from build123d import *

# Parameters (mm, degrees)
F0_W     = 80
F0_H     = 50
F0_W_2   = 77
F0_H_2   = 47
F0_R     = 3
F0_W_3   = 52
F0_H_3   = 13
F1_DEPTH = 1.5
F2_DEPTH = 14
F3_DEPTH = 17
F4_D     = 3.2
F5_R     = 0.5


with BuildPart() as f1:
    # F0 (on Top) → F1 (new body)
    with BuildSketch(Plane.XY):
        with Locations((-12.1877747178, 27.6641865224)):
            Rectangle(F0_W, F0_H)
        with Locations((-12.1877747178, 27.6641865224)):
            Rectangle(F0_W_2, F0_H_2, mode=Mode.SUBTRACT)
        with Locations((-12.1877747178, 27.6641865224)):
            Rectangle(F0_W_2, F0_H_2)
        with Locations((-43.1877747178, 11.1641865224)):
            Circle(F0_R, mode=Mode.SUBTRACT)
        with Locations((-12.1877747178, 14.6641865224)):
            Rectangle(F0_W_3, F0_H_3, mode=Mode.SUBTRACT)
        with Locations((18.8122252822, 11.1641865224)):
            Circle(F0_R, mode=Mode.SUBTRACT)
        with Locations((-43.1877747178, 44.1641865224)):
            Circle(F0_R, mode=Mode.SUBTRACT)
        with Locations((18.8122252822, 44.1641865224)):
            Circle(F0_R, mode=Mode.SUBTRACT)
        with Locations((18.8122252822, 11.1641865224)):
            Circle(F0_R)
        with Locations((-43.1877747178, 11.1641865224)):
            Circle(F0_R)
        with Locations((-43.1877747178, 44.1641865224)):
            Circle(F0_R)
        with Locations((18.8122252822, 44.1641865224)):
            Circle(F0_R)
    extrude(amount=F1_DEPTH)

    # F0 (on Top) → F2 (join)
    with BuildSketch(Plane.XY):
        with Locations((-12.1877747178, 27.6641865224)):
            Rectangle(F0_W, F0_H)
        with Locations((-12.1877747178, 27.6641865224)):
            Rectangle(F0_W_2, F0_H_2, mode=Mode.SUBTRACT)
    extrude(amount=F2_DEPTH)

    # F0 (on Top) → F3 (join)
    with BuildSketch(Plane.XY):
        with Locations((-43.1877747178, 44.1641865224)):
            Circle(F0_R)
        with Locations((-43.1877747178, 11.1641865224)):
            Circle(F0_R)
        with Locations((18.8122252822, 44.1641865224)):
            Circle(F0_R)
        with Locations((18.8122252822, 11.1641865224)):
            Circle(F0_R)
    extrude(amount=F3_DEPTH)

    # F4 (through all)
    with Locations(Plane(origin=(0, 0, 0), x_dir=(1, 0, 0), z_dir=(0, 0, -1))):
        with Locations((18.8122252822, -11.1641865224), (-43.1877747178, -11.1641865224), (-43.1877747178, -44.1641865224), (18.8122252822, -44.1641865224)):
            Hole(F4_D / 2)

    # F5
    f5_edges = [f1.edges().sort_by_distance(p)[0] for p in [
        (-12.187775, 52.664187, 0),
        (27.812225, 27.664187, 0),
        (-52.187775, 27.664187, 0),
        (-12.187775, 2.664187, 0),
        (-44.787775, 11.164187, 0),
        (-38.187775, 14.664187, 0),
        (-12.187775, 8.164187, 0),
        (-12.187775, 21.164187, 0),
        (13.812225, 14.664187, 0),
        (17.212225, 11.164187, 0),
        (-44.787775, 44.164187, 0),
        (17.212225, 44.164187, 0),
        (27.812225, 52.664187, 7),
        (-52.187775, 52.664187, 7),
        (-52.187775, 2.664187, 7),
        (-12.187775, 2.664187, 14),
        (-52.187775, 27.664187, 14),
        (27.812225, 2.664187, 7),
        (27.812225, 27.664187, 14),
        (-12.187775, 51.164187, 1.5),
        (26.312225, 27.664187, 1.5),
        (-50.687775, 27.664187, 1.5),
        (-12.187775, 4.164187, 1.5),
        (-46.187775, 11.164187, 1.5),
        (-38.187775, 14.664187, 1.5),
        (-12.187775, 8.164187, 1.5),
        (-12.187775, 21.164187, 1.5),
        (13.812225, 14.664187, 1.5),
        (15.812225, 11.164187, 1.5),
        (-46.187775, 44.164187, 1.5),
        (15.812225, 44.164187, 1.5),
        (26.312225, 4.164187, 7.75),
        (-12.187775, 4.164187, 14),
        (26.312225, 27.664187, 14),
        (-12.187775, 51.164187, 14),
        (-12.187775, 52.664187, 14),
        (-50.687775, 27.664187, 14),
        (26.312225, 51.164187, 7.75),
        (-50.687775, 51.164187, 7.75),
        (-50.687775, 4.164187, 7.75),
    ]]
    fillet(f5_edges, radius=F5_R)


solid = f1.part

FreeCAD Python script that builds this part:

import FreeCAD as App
import Part
import Sketcher

V = App.Vector
Q = App.Units.Quantity


def edges_at(feature, points):
    """Names of the edges that pass closest to the given points."""
    edges = feature.Shape.Edges
    near = lambda p: min(range(len(edges)), key=lambda i: edges[i].distToShape(Part.Vertex(*p))[0])
    return sorted({f"Edge{near(p) + 1}" for p in points})


def add_polygon(sketch, points):
    """Adds a closed chain of lines whose ends are joined by coincident constraints."""
    first, n = sketch.GeometryCount, len(points)
    for a, b in zip(points, points[1:] + points[:1]):
        sketch.addGeometry(Part.LineSegment(App.Vector(*a, 0), App.Vector(*b, 0)), False)
    for i in range(n):
        sketch.addConstraint(Sketcher.Constraint("Coincident", first + i, 2, first + (i + 1) % n, 1))

doc = App.newDocument("Part")
params = doc.addObject("Spreadsheet::Sheet", "Params")
for row, (alias, value) in enumerate([
    ("sketch1_width", "80 mm"),
    ("sketch1_width2", "52 mm"),
    ("sketch1_height", "50 mm"),
    ("sketch1_height2", "13 mm"),
    ("pad1_length", "1.5 mm"),
    ("sketch2_width", "80 mm"),
    ("sketch2_width2", "77 mm"),
    ("sketch2_height", "50 mm"),
    ("sketch2_height2", "47 mm"),
    ("pad2_length", "14 mm"),
    ("sketch3_diameter", "6 mm"),
    ("pad3_length", "17 mm"),
    ("sketch4_diameter", "3.2 mm"),
    ("hole_diameter", "3.2 mm"),
    ("fillet_radius", "0.5 mm"),
], start=1):
    params.set(f"A{row}", alias)
    params.set(f"B{row}", "=" + value)
    params.setAlias(f"B{row}", alias)

body = doc.addObject("PartDesign::Body", "Body")

# Sketch on XY plane
sketch1 = body.newObject("Sketcher::SketchObject", "Sketch")
sketch1.AttachmentSupport = (doc.getObject("XY_Plane"), [""])
sketch1.MapMode = "FlatFace"
add_polygon(sketch1, [(-52.187775, 52.664187), (-52.187775, 2.664187), (27.812225, 2.664187), (27.812225, 52.664187)])  # lines 0-3
add_polygon(sketch1, [(13.812225, 8.164187), (-38.187775, 8.164187), (-38.187775, 21.164187), (13.812225, 21.164187)])  # lines 4-7
sketch1.addConstraint(Sketcher.Constraint("Vertical", 0))
sketch1.addConstraint(Sketcher.Constraint("Horizontal", 1))
sketch1.addConstraint(Sketcher.Constraint("Vertical", 2))
sketch1.addConstraint(Sketcher.Constraint("Horizontal", 3))
sketch1.addConstraint(Sketcher.Constraint("Horizontal", 4))
sketch1.addConstraint(Sketcher.Constraint("Vertical", 5))
sketch1.addConstraint(Sketcher.Constraint("Horizontal", 6))
sketch1.addConstraint(Sketcher.Constraint("Vertical", 7))
sketch1.addConstraint(Sketcher.Constraint("DistanceX", 1, 1, 1, 2, Q("80 mm")))
sketch1.addConstraint(Sketcher.Constraint("DistanceX", 4, 2, 4, 1, Q("52 mm")))
sketch1.addConstraint(Sketcher.Constraint("DistanceY", 0, 2, 0, 1, Q("50 mm")))
sketch1.addConstraint(Sketcher.Constraint("DistanceY", 5, 1, 5, 2, Q("13 mm")))
sketch1.addConstraint(Sketcher.Constraint("DistanceX", 0, 2, 4, 2, Q("14 mm")))
sketch1.addConstraint(Sketcher.Constraint("DistanceY", 0, 2, 4, 2, Q("5.5 mm")))
sketch1.addConstraint(Sketcher.Constraint("DistanceX", 0, 2, -1, 1, Q("52.187775 mm")))
sketch1.addConstraint(Sketcher.Constraint("DistanceY", -1, 1, 0, 2, Q("2.664187 mm")))
sketch1.setExpression("Constraints[16]", "Params.sketch1_width")
sketch1.setExpression("Constraints[17]", "Params.sketch1_width2")
sketch1.setExpression("Constraints[18]", "Params.sketch1_height")
sketch1.setExpression("Constraints[19]", "Params.sketch1_height2")
pad1 = body.newObject("PartDesign::Pad", "Pad")
pad1.Profile = sketch1
pad1.setExpression("Length", "Params.pad1_length")

# Sketch on XY plane
sketch2 = body.newObject("Sketcher::SketchObject", "Sketch001")
sketch2.AttachmentSupport = (doc.getObject("XY_Plane"), [""])
sketch2.MapMode = "FlatFace"
add_polygon(sketch2, [(-52.187775, 52.664187), (-52.187775, 2.664187), (27.812225, 2.664187), (27.812225, 52.664187)])  # lines 0-3
add_polygon(sketch2, [(26.312225, 4.164187), (-50.687775, 4.164187), (-50.687775, 51.164187), (26.312225, 51.164187)])  # lines 4-7
sketch2.addConstraint(Sketcher.Constraint("Vertical", 0))
sketch2.addConstraint(Sketcher.Constraint("Horizontal", 1))
sketch2.addConstraint(Sketcher.Constraint("Vertical", 2))
sketch2.addConstraint(Sketcher.Constraint("Horizontal", 3))
sketch2.addConstraint(Sketcher.Constraint("Horizontal", 4))
sketch2.addConstraint(Sketcher.Constraint("Vertical", 5))
sketch2.addConstraint(Sketcher.Constraint("Horizontal", 6))
sketch2.addConstraint(Sketcher.Constraint("Vertical", 7))
sketch2.addConstraint(Sketcher.Constraint("DistanceX", 1, 1, 1, 2, Q("80 mm")))
sketch2.addConstraint(Sketcher.Constraint("DistanceX", 4, 2, 4, 1, Q("77 mm")))
sketch2.addConstraint(Sketcher.Constraint("DistanceY", 0, 2, 0, 1, Q("50 mm")))
sketch2.addConstraint(Sketcher.Constraint("DistanceY", 5, 1, 5, 2, Q("47 mm")))
sketch2.addConstraint(Sketcher.Constraint("DistanceX", 0, 2, 4, 2, Q("1.5 mm")))
sketch2.addConstraint(Sketcher.Constraint("DistanceY", 0, 2, 4, 2, Q("1.5 mm")))
sketch2.addConstraint(Sketcher.Constraint("DistanceX", 0, 2, -1, 1, Q("52.187775 mm")))
sketch2.addConstraint(Sketcher.Constraint("DistanceY", -1, 1, 0, 2, Q("2.664187 mm")))
sketch2.setExpression("Constraints[16]", "Params.sketch2_width")
sketch2.setExpression("Constraints[17]", "Params.sketch2_width2")
sketch2.setExpression("Constraints[18]", "Params.sketch2_height")
sketch2.setExpression("Constraints[19]", "Params.sketch2_height2")
pad2 = body.newObject("PartDesign::Pad", "Pad001")
pad2.Profile = sketch2
pad2.setExpression("Length", "Params.pad2_length")

# Sketch on XY plane
sketch3 = body.newObject("Sketcher::SketchObject", "Sketch002")
sketch3.AttachmentSupport = (doc.getObject("XY_Plane"), [""])
sketch3.MapMode = "FlatFace"
sketch3.addGeometry(Part.Circle(V(-43.187775, 44.164187, 0), V(0, 0, 1), 3), False)
sketch3.addGeometry(Part.Circle(V(-43.187775, 11.164187, 0), V(0, 0, 1), 3), False)
sketch3.addGeometry(Part.Circle(V(18.812225, 44.164187, 0), V(0, 0, 1), 3), False)
sketch3.addGeometry(Part.Circle(V(18.812225, 11.164187, 0), V(0, 0, 1), 3), False)
sketch3.addConstraint(Sketcher.Constraint("Equal", 0, 1))
sketch3.addConstraint(Sketcher.Constraint("Equal", 1, 2))
sketch3.addConstraint(Sketcher.Constraint("Equal", 2, 3))
sketch3.addConstraint(Sketcher.Constraint("Horizontal", 0, 3, 2, 3))
sketch3.addConstraint(Sketcher.Constraint("Horizontal", 1, 3, 3, 3))
sketch3.addConstraint(Sketcher.Constraint("Vertical", 0, 3, 1, 3))
sketch3.addConstraint(Sketcher.Constraint("Vertical", 2, 3, 3, 3))
sketch3.addConstraint(Sketcher.Constraint("Diameter", 0, Q("6 mm")))
sketch3.addConstraint(Sketcher.Constraint("DistanceY", 1, 3, 0, 3, Q("33 mm")))
sketch3.addConstraint(Sketcher.Constraint("DistanceX", 0, 3, 2, 3, Q("62 mm")))
sketch3.addConstraint(Sketcher.Constraint("DistanceX", 0, 3, -1, 1, Q("43.187775 mm")))
sketch3.addConstraint(Sketcher.Constraint("DistanceY", -1, 1, 0, 3, Q("44.164187 mm")))
sketch3.setExpression("Constraints[7]", "Params.sketch3_diameter")
pad3 = body.newObject("PartDesign::Pad", "Pad002")
pad3.Profile = sketch3
pad3.setExpression("Length", "Params.pad3_length")

# Sketch on XY plane
sketch4 = body.newObject("Sketcher::SketchObject", "Sketch003")
sketch4.AttachmentSupport = (doc.getObject("XY_Plane"), [""])
sketch4.MapMode = "FlatFace"
sketch4.addGeometry(Part.Circle(V(18.812225, 11.164187, 0), V(0, 0, 1), 1.6), False)
sketch4.addGeometry(Part.Circle(V(-43.187775, 11.164187, 0), V(0, 0, 1), 1.6), False)
sketch4.addGeometry(Part.Circle(V(-43.187775, 44.164187, 0), V(0, 0, 1), 1.6), False)
sketch4.addGeometry(Part.Circle(V(18.812225, 44.164187, 0), V(0, 0, 1), 1.6), False)
sketch4.addConstraint(Sketcher.Constraint("Equal", 0, 1))
sketch4.addConstraint(Sketcher.Constraint("Equal", 1, 2))
sketch4.addConstraint(Sketcher.Constraint("Equal", 2, 3))
sketch4.addConstraint(Sketcher.Constraint("Horizontal", 0, 3, 1, 3))
sketch4.addConstraint(Sketcher.Constraint("Horizontal", 2, 3, 3, 3))
sketch4.addConstraint(Sketcher.Constraint("Vertical", 1, 3, 2, 3))
sketch4.addConstraint(Sketcher.Constraint("Vertical", 0, 3, 3, 3))
sketch4.addConstraint(Sketcher.Constraint("Diameter", 0, Q("3.2 mm")))
sketch4.addConstraint(Sketcher.Constraint("DistanceX", 1, 3, 0, 3, Q("62 mm")))
sketch4.addConstraint(Sketcher.Constraint("DistanceY", 1, 3, 2, 3, Q("33 mm")))
sketch4.addConstraint(Sketcher.Constraint("DistanceX", -1, 1, 0, 3, Q("18.812225 mm")))
sketch4.addConstraint(Sketcher.Constraint("DistanceY", -1, 1, 0, 3, Q("11.164187 mm")))
sketch4.setExpression("Constraints[7]", "Params.sketch4_diameter")
doc.recompute()
hole = body.newObject("PartDesign::Hole", "Hole")
hole.Profile = sketch4
hole.ThreadType = "None"
hole.setExpression("Diameter", "Params.hole_diameter")
hole.DepthType = "ThroughAll"
hole.Reversed = True
doc.recompute()

fillet = body.newObject("PartDesign::Fillet", "Fillet")
fillet.Base = (hole, edges_at(hole, [
    (-12.188, 52.664, 0),
    (27.812, 27.664, 0),
    (-52.188, 27.664, 0),
    (-12.188, 2.664, 0),
    (-41.588, 11.164, 0),
    (-38.188, 14.664, 0),
    (-12.188, 8.164, 0),
    (-12.188, 21.164, 0),
    (13.812, 14.664, 0),
    (20.412, 11.164, 0),
    (-41.588, 44.164, 0),
    (20.412, 44.164, 0),
    (27.812, 52.664, 7),
    (-52.188, 52.664, 7),
    (-52.188, 2.664, 7),
    (-12.188, 2.664, 14),
    (-52.188, 27.664, 14),
    (27.812, 2.664, 7),
    (27.812, 27.664, 14),
    (-12.188, 51.164, 1.5),
    (26.312, 27.664, 1.5),
    (-50.688, 27.664, 1.5),
    (-12.188, 4.164, 1.5),
    (-46.188, 11.164, 1.5),
    (-38.188, 14.664, 1.5),
    (-12.188, 8.164, 1.5),
    (-12.188, 21.164, 1.5),
    (13.812, 14.664, 1.5),
    (15.812, 11.164, 1.5),
    (-46.188, 44.164, 1.5),
    (15.812, 44.164, 1.5),
    (26.312, 4.164, 7.75),
    (-12.188, 4.164, 14),
    (26.312, 27.664, 14),
    (-12.188, 51.164, 14),
    (-12.188, 52.664, 14),
    (-50.688, 27.664, 14),
    (26.312, 51.164, 7.75),
    (-50.688, 51.164, 7.75),
    (-50.688, 4.164, 7.75),
]))
fillet.setExpression("Radius", "Params.fillet_radius")

doc.recompute()
